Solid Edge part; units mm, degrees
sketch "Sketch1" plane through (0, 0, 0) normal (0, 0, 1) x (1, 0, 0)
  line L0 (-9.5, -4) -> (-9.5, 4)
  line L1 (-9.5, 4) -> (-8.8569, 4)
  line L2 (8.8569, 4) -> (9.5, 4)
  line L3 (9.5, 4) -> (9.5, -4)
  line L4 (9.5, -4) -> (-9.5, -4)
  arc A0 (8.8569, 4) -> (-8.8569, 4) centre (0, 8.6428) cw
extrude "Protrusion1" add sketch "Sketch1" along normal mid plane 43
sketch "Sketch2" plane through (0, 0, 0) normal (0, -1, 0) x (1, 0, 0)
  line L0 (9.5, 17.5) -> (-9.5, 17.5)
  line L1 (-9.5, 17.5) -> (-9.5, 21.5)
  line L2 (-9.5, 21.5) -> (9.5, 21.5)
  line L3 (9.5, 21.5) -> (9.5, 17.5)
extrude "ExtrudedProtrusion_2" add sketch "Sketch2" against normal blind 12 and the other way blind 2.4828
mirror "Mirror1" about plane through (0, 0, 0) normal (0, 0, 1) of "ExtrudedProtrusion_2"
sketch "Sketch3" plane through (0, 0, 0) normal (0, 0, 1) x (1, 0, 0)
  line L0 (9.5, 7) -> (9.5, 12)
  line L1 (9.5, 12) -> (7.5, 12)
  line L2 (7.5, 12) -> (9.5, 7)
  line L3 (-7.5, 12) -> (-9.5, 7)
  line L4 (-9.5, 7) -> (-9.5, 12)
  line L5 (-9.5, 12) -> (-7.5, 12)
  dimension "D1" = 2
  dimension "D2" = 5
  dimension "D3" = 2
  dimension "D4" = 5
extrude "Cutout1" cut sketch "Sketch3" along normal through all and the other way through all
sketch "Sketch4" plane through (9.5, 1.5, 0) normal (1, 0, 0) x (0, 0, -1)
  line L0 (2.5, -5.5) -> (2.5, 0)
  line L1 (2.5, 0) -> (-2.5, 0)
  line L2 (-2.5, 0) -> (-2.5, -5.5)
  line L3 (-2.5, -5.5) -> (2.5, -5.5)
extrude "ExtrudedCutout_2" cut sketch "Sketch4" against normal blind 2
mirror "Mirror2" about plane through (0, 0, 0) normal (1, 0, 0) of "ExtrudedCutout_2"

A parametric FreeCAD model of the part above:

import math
import FreeCAD as App
import Part
import Sketcher


def add_polygon(sketch, points):
    """Adds a closed chain of lines whose ends are joined by coincident constraints."""
    first, n = sketch.GeometryCount, len(points)
    for a, b in zip(points, points[1:] + points[:1]):
        sketch.addGeometry(Part.LineSegment(App.Vector(*a, 0), App.Vector(*b, 0)), False)
    for i in range(n):
        sketch.addConstraint(Sketcher.Constraint("Coincident", first + i, 2, first + (i + 1) % n, 1))

doc = App.newDocument("Part")
body = doc.addObject("PartDesign::Body", "Body")

# Sketch on XY plane
sketch1 = body.newObject("Sketcher::SketchObject", "Sketch")
sketch1.AttachmentSupport = (doc.getObject("XY_Plane"), [""])
sketch1.MapMode = "FlatFace"
sketch1.addGeometry([
    Part.LineSegment(App.Vector(-9.5, 4, 0), App.Vector(-9.5, -4, 0)),  # 0
    Part.LineSegment(App.Vector(-9.5, -4, 0), App.Vector(9.5, -4, 0)),  # 1
    Part.LineSegment(App.Vector(9.5, -4, 0), App.Vector(9.5, 4, 0)),  # 2
    Part.LineSegment(App.Vector(9.5, 4, 0), App.Vector(8.9, 4, 0)),  # 3
    Part.ArcOfCircle(Part.Circle(App.Vector(0, 8.6, 0), App.Vector(0, 0, 1), 10), math.radians(-152), math.radians(-28)),  # 4
    Part.LineSegment(App.Vector(-8.9, 4, 0), App.Vector(-9.5, 4, 0)),  # 5
], False)
sketch1.addConstraint([
    Sketcher.Constraint("Coincident", 0, 2, 1, 1),
    Sketcher.Constraint("Coincident", 1, 2, 2, 1),
    Sketcher.Constraint("Coincident", 2, 2, 3, 1),
    Sketcher.Constraint("Coincident", 3, 2, 4, 2),
    Sketcher.Constraint("Coincident", 4, 1, 5, 1),
    Sketcher.Constraint("Coincident", 5, 2, 0, 1),
    Sketcher.Constraint("Vertical", 0),
    Sketcher.Constraint("Horizontal", 1),
    Sketcher.Constraint("Vertical", 2),
    Sketcher.Constraint("Horizontal", 3),
    Sketcher.Constraint("Horizontal", 5),
    Sketcher.Constraint("Symmetric", 0, 2, 2, 2, -1, 1),
    Sketcher.Constraint("Symmetric", 3, 2, 4, 1, -2),
    Sketcher.Constraint("Radius", 4, 10.0),
    Sketcher.Constraint("DistanceX", 1, 1, 1, 2, 19.0),
    Sketcher.Constraint("DistanceY", 0, 2, 0, 1, 8.0),
    Sketcher.Constraint("DistanceX", 3, 2, 3, 1, 0.643),
])
pad1 = body.newObject("PartDesign::Pad", "Pad")
pad1.Profile = sketch1
pad1.Length = 43
pad1.Midplane = True

# Sketch on XZ plane
sketch2 = body.newObject("Sketcher::SketchObject", "Sketch001")
sketch2.AttachmentSupport = (doc.getObject("XZ_Plane"), [""])
sketch2.MapMode = "FlatFace"
add_polygon(sketch2, [(-9.5, 17.5), (9.5, 17.5), (9.5, 21.5), (-9.5, 21.5)])  # lines 0-3
sketch2.addConstraint([
    Sketcher.Constraint("Horizontal", 0),
    Sketcher.Constraint("Vertical", 1),
    Sketcher.Constraint("Horizontal", 2),
    Sketcher.Constraint("Vertical", 3),
    Sketcher.Constraint("DistanceX", 0, 1, 0, 2, 19.0),
    Sketcher.Constraint("DistanceY", 1, 1, 1, 2, 4.0),
    Sketcher.Constraint("DistanceX", -1, 1, 0, 2, 9.5),
    Sketcher.Constraint("DistanceY", -1, 1, 0, 2, 17.5),
])
pad2 = body.newObject("PartDesign::Pad", "Pad001")
pad2.Profile = sketch2
pad2.Type = "TwoLengths"
pad2.Length = 12
pad2.Length2 = 2.4828
pad2.Reversed = True
doc.recompute()

mirrored = body.newObject("PartDesign::Mirrored", "Mirrored")
mirrored.Originals = [pad2]
mirrored.MirrorPlane = (doc.getObject("XY_Plane"), [""])
body.Tip = mirrored

# Sketch on XY plane
sketch3 = body.newObject("Sketcher::SketchObject", "Sketch002")
sketch3.AttachmentSupport = (doc.getObject("XY_Plane"), [""])
sketch3.MapMode = "FlatFace"
add_polygon(sketch3, [(7.5, 12), (9.5, 7), (9.5, 12)])  # lines 0-2
add_polygon(sketch3, [(-9.5, 7), (-7.5, 12), (-9.5, 12)])  # lines 3-5
sketch3.addConstraint([
    Sketcher.Constraint("Vertical", 1),
    Sketcher.Constraint("Horizontal", 2),
    Sketcher.Constraint("Horizontal", 4),
    Sketcher.Constraint("Vertical", 5),
    Sketcher.Constraint("Symmetric", 2, 2, 3, 2, -2),
    Sketcher.Constraint("Symmetric", 0, 2, 5, 2, -2),
    Sketcher.Constraint("DistanceX", 2, 2, 2, 1, 2.0),
    Sketcher.Constraint("DistanceY", 1, 1, 1, 2, 5.0),
    Sketcher.Constraint("DistanceY", -1, 1, 0, 2, 7.0),
    Sketcher.Constraint("DistanceX", 3, 2, 2, 2, 15.0),
])
pocket1 = body.newObject("PartDesign::Pocket", "Pocket")
pocket1.Profile = sketch3
pocket1.Type = "ThroughAll"
pocket1.Midplane = True

# Sketch on YZ plane
sketch4 = body.newObject("Sketcher::SketchObject", "Sketch003")
sketch4.AttachmentSupport = (doc.getObject("YZ_Plane"), [""])
sketch4.MapMode = "FlatFace"
sketch4.AttachmentOffset = App.Placement(App.Vector(0, 0, 9.5), App.Rotation())
add_polygon(sketch4, [(-4, 2), (-4, -2), (2, -2), (2, 2)])  # lines 0-3
sketch4.addConstraint([
    Sketcher.Constraint("Vertical", 0),
    Sketcher.Constraint("Horizontal", 1),
    Sketcher.Constraint("Vertical", 2),
    Sketcher.Constraint("Horizontal", 3),
    Sketcher.Constraint("DistanceY", 0, 2, 0, 1, 5.0),
    Sketcher.Constraint("DistanceX", 1, 1, 1, 2, 5.5),
    Sketcher.Constraint("DistanceX", 0, 2, -1, 1, 4.0),
    Sketcher.Constraint("DistanceY", 0, 2, -1, 1, 2.5),
])
pocket2 = body.newObject("PartDesign::Pocket", "Pocket001")
pocket2.Profile = sketch4
pocket2.Length = 2
doc.recompute()

mirrored2 = body.newObject("PartDesign::Mirrored", "Mirrored001")
mirrored2.Originals = [pocket2]
mirrored2.MirrorPlane = (doc.getObject("YZ_Plane"), [""])
body.Tip = mirrored2

doc.recompute()
